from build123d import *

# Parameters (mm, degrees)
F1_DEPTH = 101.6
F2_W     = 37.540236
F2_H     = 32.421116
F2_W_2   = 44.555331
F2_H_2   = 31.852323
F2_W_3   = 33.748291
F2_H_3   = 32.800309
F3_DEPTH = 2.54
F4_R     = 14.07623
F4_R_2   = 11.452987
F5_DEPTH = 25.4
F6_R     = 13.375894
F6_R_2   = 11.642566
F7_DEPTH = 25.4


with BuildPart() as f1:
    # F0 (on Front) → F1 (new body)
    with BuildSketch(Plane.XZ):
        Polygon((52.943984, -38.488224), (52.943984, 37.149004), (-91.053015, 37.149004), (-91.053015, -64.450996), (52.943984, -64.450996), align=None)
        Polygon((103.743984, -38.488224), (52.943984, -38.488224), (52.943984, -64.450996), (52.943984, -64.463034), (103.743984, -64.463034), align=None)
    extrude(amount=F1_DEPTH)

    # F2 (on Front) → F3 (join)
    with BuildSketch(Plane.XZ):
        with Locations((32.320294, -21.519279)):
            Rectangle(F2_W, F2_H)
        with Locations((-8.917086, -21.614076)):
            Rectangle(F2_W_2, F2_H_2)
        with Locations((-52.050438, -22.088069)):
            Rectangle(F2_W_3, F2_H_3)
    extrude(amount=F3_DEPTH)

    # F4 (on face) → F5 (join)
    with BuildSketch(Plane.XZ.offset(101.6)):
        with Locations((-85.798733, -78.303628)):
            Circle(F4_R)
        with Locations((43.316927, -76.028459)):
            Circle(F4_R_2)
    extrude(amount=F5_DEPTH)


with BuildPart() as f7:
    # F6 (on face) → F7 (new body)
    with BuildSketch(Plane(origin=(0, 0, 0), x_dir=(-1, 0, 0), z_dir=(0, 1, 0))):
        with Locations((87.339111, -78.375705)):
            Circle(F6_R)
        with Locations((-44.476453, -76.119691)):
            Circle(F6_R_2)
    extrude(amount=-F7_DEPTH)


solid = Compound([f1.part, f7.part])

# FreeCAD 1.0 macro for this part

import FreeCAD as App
import Part
import Sketcher
from FreeCAD import Vector
Q = App.Units.Quantity

doc = App.newDocument("Part")
params = doc.addObject("Spreadsheet::Sheet", "Params")
for row, (alias, value) in enumerate([
    ("sketch1_width", "2 in"),
    ("sketch1_height", "4 in"),
    ("pad1_length", "4 in"),
    ("pad2_length", "0.1 in"),
    ("pad3_length", "1 in"),
    ("pad4_length", "1 in"),
], start=1):
    params.set(f"A{row}", alias)
    params.set(f"B{row}", "=" + value)
    params.setAlias(f"B{row}", alias)

body = doc.addObject("PartDesign::Body", "Body")
body.AllowCompound = True

# Sketch on XZ plane
sketch1 = body.newObject("Sketcher::SketchObject", "Sketch")
sketch1.AttachmentSupport = (doc.getObject("XZ_Plane"), [""])
sketch1.MapMode = "FlatFace"
sketch1.addGeometry(Part.LineSegment(Vector(52.943984, 37.149004, 0), Vector(-91.053015, 37.149004, 0)), False)
sketch1.addGeometry(Part.LineSegment(Vector(-91.053015, 37.149004, 0), Vector(-91.053015, -64.450996, 0)), False)
sketch1.addGeometry(Part.LineSegment(Vector(-91.053015, -64.450996, 0), Vector(52.943984, -64.450996, 0)), False)
sketch1.addGeometry(Part.LineSegment(Vector(52.943984, -64.450996, 0), Vector(52.943984, -64.463034, 0)), False)
sketch1.addGeometry(Part.LineSegment(Vector(52.943984, -64.463034, 0), Vector(103.743984, -64.463034, 0)), False)
sketch1.addGeometry(Part.LineSegment(Vector(103.743984, -64.463034, 0), Vector(103.743984, -38.488224, 0)), False)
sketch1.addGeometry(Part.LineSegment(Vector(103.743984, -38.488224, 0), Vector(52.943984, -38.488224, 0)), False)
sketch1.addGeometry(Part.LineSegment(Vector(52.943984, -38.488224, 0), Vector(52.943984, 37.149004, 0)), False)
sketch1.addConstraint(Sketcher.Constraint("Coincident", 0, 2, 1, 1))
sketch1.addConstraint(Sketcher.Constraint("Coincident", 1, 2, 2, 1))
sketch1.addConstraint(Sketcher.Constraint("Coincident", 2, 2, 3, 1))
sketch1.addConstraint(Sketcher.Constraint("Coincident", 3, 2, 4, 1))
sketch1.addConstraint(Sketcher.Constraint("Coincident", 4, 2, 5, 1))
sketch1.addConstraint(Sketcher.Constraint("Coincident", 5, 2, 6, 1))
sketch1.addConstraint(Sketcher.Constraint("Coincident", 6, 2, 7, 1))
sketch1.addConstraint(Sketcher.Constraint("Coincident", 7, 2, 0, 1))
sketch1.addConstraint(Sketcher.Constraint("Horizontal", 0))
sketch1.addConstraint(Sketcher.Constraint("Vertical", 1))
sketch1.addConstraint(Sketcher.Constraint("Horizontal", 2))
sketch1.addConstraint(Sketcher.Constraint("Vertical", 3))
sketch1.addConstraint(Sketcher.Constraint("Horizontal", 4))
sketch1.addConstraint(Sketcher.Constraint("Vertical", 5))
sketch1.addConstraint(Sketcher.Constraint("Horizontal", 6))
sketch1.addConstraint(Sketcher.Constraint("Vertical", 7))
sketch1.addConstraint(Sketcher.Constraint("Vertical", 3, 2, 6, 2))
sketch1.addConstraint(Sketcher.Constraint("DistanceX", 4, 1, 4, 2, Q("2 in")))
sketch1.addConstraint(Sketcher.Constraint("DistanceY", 1, 2, 1, 1, Q("4 in")))
sketch1.addConstraint(Sketcher.Constraint("DistanceX", 0, 2, 0, 1, 143.996999))
sketch1.addConstraint(Sketcher.Constraint("DistanceY", 5, 1, 5, 2, 25.97481))
sketch1.addConstraint(Sketcher.Constraint("DistanceY", 3, 2, 3, 1, 0.012038))
sketch1.addConstraint(Sketcher.Constraint("DistanceX", 0, 2, -1, 1, 91.053015))
sketch1.addConstraint(Sketcher.Constraint("DistanceY", -1, 1, 0, 2, 37.149004))
sketch1.setExpression("Constraints[17]", "Params.sketch1_width")
sketch1.setExpression("Constraints[18]", "Params.sketch1_height")
pad1 = body.newObject("PartDesign::Pad", "Pad")
pad1.Profile = sketch1
pad1.setExpression("Length", "Params.pad1_length")

# Sketch on XZ plane
sketch2 = body.newObject("Sketcher::SketchObject", "Sketch001")
sketch2.AttachmentSupport = (doc.getObject("XZ_Plane"), [""])
sketch2.MapMode = "FlatFace"
sketch2.addGeometry(Part.LineSegment(Vector(14, -5, 0), Vector(14, -38, 0)), False)
sketch2.addGeometry(Part.LineSegment(Vector(14, -38, 0), Vector(51, -38, 0)), False)
sketch2.addGeometry(Part.LineSegment(Vector(51, -38, 0), Vector(51, -5, 0)), False)
sketch2.addGeometry(Part.LineSegment(Vector(51, -5, 0), Vector(14, -5, 0)), False)
sketch2.addGeometry(Part.LineSegment(Vector(-31, -6, 0), Vector(-31, -38, 0)), False)
sketch2.addGeometry(Part.LineSegment(Vector(-31, -38, 0), Vector(13, -38, 0)), False)
sketch2.addGeometry(Part.LineSegment(Vector(13, -38, 0), Vector(13, -6, 0)), False)
sketch2.addGeometry(Part.LineSegment(Vector(13, -6, 0), Vector(-31, -6, 0)), False)
sketch2.addGeometry(Part.LineSegment(Vector(-69, -6, 0), Vector(-69, -38, 0)), False)
sketch2.addGeometry(Part.LineSegment(Vector(-69, -38, 0), Vector(-35, -38, 0)), False)
sketch2.addGeometry(Part.LineSegment(Vector(-35, -38, 0), Vector(-35, -6, 0)), False)
sketch2.addGeometry(Part.LineSegment(Vector(-35, -6, 0), Vector(-69, -6, 0)), False)
sketch2.addConstraint(Sketcher.Constraint("Coincident", 0, 2, 1, 1))
sketch2.addConstraint(Sketcher.Constraint("Coincident", 1, 2, 2, 1))
sketch2.addConstraint(Sketcher.Constraint("Coincident", 2, 2, 3, 1))
sketch2.addConstraint(Sketcher.Constraint("Coincident", 3, 2, 0, 1))
sketch2.addConstraint(Sketcher.Constraint("Coincident", 4, 2, 5, 1))
sketch2.addConstraint(Sketcher.Constraint("Coincident", 5, 2, 6, 1))
sketch2.addConstraint(Sketcher.Constraint("Coincident", 6, 2, 7, 1))
sketch2.addConstraint(Sketcher.Constraint("Coincident", 7, 2, 4, 1))
sketch2.addConstraint(Sketcher.Constraint("Coincident", 8, 2, 9, 1))
sketch2.addConstraint(Sketcher.Constraint("Coincident", 9, 2, 10, 1))
sketch2.addConstraint(Sketcher.Constraint("Coincident", 10, 2, 11, 1))
sketch2.addConstraint(Sketcher.Constraint("Coincident", 11, 2, 8, 1))
sketch2.addConstraint(Sketcher.Constraint("Vertical", 0))
sketch2.addConstraint(Sketcher.Constraint("Horizontal", 1))
sketch2.addConstraint(Sketcher.Constraint("Vertical", 2))
sketch2.addConstraint(Sketcher.Constraint("Horizontal", 3))
sketch2.addConstraint(Sketcher.Constraint("Vertical", 4))
sketch2.addConstraint(Sketcher.Constraint("Horizontal", 5))
sketch2.addConstraint(Sketcher.Constraint("Vertical", 6))
sketch2.addConstraint(Sketcher.Constraint("Horizontal", 7))
sketch2.addConstraint(Sketcher.Constraint("Vertical", 8))
sketch2.addConstraint(Sketcher.Constraint("Horizontal", 9))
sketch2.addConstraint(Sketcher.Constraint("Vertical", 10))
sketch2.addConstraint(Sketcher.Constraint("Horizontal", 11))
sketch2.addConstraint(Sketcher.Constraint("Horizontal", 7, 2, 10, 2))
sketch2.addConstraint(Sketcher.Constraint("DistanceX", 5, 1, 5, 2, 44.555331))
sketch2.addConstraint(Sketcher.Constraint("DistanceX", 9, 1, 9, 2, 33.748291))
sketch2.addConstraint(Sketcher.Constraint("DistanceY", 8, 2, 8, 1, 32.800309))
sketch2.addConstraint(Sketcher.Constraint("DistanceY", 0, 2, 4, 2, 0.189599))
sketch2.addConstraint(Sketcher.Constraint("DistanceX", 1, 1, 1, 2, 37.540236))
sketch2.addConstraint(Sketcher.Constraint("DistanceY", 0, 2, 0, 1, 32.421116))
sketch2.addConstraint(Sketcher.Constraint("DistanceY", 4, 2, 4, 1, 31.852323))
sketch2.addConstraint(Sketcher.Constraint("DistanceY", 2, 2, -1, 1, 5.308721))
sketch2.addConstraint(Sketcher.Constraint("DistanceX", 4, 2, -1, 1, 31.194751))
sketch2.addConstraint(Sketcher.Constraint("DistanceX", 8, 2, 0, 2, 82.47476))
sketch2.addConstraint(Sketcher.Constraint("DistanceX", 9, 2, 4, 2, 3.981541))
pad2 = body.newObject("PartDesign::Pad", "Pad001")
pad2.Profile = sketch2
pad2.setExpression("Length", "Params.pad2_length")

# Sketch on XZ plane
sketch3 = body.newObject("Sketcher::SketchObject", "Sketch002")
sketch3.AttachmentSupport = (doc.getObject("XZ_Plane"), [""])
sketch3.MapMode = "FlatFace"
sketch3.AttachmentOffset = App.Placement(Vector(0, 0, 4 * 25.4), App.Rotation())
sketch3.addGeometry(Part.Circle(Vector(-86, -78, 0), Vector(0, 0, 1), 14), False)
sketch3.addGeometry(Part.Circle(Vector(43, -76, 0), Vector(0, 0, 1), 11), False)
sketch3.addConstraint(Sketcher.Constraint("Diameter", 0, 28.15246))
sketch3.addConstraint(Sketcher.Constraint("Diameter", 1, 22.905974))
sketch3.addConstraint(Sketcher.Constraint("DistanceY", 0, 3, -1, 1, 78.303628))
sketch3.addConstraint(Sketcher.Constraint("DistanceY", 1, 3, -1, 1, 76.028459))
sketch3.addConstraint(Sketcher.Constraint("DistanceX", 0, 3, 1, 3, 129.11566))
sketch3.addConstraint(Sketcher.Constraint("DistanceX", 0, 3, -1, 1, 85.798733))
pad3 = body.newObject("PartDesign::Pad", "Pad002")
pad3.Profile = sketch3
pad3.setExpression("Length", "Params.pad3_length")
body2 = doc.addObject("PartDesign::Body", "Body001")
body2.AllowCompound = True

# Sketch on XZ plane
sketch4 = body2.newObject("Sketcher::SketchObject", "Sketch003")
sketch4.AttachmentSupport = (doc.getObject("XZ_Plane001"), [""])
sketch4.MapMode = "FlatFace"
sketch4.addGeometry(Part.Circle(Vector(-87, -78, 0), Vector(0, 0, 1), 13), False)
sketch4.addGeometry(Part.Circle(Vector(44, -76, 0), Vector(0, 0, 1), 12), False)
sketch4.addConstraint(Sketcher.Constraint("Diameter", 0, 26.751788))
sketch4.addConstraint(Sketcher.Constraint("Diameter", 1, 23.285132))
sketch4.addConstraint(Sketcher.Constraint("DistanceX", 0, 3, -1, 1, 87.339111))
sketch4.addConstraint(Sketcher.Constraint("DistanceY", 1, 3, -1, 1, 76.119691))
sketch4.addConstraint(Sketcher.Constraint("DistanceY", 0, 3, -1, 1, 78.375705))
sketch4.addConstraint(Sketcher.Constraint("DistanceX", -1, 1, 1, 3, 44.476453))
pad4 = body2.newObject("PartDesign::Pad", "Pad003")
pad4.Profile = sketch4
pad4.setExpression("Length", "Params.pad4_length")

doc.recompute()
